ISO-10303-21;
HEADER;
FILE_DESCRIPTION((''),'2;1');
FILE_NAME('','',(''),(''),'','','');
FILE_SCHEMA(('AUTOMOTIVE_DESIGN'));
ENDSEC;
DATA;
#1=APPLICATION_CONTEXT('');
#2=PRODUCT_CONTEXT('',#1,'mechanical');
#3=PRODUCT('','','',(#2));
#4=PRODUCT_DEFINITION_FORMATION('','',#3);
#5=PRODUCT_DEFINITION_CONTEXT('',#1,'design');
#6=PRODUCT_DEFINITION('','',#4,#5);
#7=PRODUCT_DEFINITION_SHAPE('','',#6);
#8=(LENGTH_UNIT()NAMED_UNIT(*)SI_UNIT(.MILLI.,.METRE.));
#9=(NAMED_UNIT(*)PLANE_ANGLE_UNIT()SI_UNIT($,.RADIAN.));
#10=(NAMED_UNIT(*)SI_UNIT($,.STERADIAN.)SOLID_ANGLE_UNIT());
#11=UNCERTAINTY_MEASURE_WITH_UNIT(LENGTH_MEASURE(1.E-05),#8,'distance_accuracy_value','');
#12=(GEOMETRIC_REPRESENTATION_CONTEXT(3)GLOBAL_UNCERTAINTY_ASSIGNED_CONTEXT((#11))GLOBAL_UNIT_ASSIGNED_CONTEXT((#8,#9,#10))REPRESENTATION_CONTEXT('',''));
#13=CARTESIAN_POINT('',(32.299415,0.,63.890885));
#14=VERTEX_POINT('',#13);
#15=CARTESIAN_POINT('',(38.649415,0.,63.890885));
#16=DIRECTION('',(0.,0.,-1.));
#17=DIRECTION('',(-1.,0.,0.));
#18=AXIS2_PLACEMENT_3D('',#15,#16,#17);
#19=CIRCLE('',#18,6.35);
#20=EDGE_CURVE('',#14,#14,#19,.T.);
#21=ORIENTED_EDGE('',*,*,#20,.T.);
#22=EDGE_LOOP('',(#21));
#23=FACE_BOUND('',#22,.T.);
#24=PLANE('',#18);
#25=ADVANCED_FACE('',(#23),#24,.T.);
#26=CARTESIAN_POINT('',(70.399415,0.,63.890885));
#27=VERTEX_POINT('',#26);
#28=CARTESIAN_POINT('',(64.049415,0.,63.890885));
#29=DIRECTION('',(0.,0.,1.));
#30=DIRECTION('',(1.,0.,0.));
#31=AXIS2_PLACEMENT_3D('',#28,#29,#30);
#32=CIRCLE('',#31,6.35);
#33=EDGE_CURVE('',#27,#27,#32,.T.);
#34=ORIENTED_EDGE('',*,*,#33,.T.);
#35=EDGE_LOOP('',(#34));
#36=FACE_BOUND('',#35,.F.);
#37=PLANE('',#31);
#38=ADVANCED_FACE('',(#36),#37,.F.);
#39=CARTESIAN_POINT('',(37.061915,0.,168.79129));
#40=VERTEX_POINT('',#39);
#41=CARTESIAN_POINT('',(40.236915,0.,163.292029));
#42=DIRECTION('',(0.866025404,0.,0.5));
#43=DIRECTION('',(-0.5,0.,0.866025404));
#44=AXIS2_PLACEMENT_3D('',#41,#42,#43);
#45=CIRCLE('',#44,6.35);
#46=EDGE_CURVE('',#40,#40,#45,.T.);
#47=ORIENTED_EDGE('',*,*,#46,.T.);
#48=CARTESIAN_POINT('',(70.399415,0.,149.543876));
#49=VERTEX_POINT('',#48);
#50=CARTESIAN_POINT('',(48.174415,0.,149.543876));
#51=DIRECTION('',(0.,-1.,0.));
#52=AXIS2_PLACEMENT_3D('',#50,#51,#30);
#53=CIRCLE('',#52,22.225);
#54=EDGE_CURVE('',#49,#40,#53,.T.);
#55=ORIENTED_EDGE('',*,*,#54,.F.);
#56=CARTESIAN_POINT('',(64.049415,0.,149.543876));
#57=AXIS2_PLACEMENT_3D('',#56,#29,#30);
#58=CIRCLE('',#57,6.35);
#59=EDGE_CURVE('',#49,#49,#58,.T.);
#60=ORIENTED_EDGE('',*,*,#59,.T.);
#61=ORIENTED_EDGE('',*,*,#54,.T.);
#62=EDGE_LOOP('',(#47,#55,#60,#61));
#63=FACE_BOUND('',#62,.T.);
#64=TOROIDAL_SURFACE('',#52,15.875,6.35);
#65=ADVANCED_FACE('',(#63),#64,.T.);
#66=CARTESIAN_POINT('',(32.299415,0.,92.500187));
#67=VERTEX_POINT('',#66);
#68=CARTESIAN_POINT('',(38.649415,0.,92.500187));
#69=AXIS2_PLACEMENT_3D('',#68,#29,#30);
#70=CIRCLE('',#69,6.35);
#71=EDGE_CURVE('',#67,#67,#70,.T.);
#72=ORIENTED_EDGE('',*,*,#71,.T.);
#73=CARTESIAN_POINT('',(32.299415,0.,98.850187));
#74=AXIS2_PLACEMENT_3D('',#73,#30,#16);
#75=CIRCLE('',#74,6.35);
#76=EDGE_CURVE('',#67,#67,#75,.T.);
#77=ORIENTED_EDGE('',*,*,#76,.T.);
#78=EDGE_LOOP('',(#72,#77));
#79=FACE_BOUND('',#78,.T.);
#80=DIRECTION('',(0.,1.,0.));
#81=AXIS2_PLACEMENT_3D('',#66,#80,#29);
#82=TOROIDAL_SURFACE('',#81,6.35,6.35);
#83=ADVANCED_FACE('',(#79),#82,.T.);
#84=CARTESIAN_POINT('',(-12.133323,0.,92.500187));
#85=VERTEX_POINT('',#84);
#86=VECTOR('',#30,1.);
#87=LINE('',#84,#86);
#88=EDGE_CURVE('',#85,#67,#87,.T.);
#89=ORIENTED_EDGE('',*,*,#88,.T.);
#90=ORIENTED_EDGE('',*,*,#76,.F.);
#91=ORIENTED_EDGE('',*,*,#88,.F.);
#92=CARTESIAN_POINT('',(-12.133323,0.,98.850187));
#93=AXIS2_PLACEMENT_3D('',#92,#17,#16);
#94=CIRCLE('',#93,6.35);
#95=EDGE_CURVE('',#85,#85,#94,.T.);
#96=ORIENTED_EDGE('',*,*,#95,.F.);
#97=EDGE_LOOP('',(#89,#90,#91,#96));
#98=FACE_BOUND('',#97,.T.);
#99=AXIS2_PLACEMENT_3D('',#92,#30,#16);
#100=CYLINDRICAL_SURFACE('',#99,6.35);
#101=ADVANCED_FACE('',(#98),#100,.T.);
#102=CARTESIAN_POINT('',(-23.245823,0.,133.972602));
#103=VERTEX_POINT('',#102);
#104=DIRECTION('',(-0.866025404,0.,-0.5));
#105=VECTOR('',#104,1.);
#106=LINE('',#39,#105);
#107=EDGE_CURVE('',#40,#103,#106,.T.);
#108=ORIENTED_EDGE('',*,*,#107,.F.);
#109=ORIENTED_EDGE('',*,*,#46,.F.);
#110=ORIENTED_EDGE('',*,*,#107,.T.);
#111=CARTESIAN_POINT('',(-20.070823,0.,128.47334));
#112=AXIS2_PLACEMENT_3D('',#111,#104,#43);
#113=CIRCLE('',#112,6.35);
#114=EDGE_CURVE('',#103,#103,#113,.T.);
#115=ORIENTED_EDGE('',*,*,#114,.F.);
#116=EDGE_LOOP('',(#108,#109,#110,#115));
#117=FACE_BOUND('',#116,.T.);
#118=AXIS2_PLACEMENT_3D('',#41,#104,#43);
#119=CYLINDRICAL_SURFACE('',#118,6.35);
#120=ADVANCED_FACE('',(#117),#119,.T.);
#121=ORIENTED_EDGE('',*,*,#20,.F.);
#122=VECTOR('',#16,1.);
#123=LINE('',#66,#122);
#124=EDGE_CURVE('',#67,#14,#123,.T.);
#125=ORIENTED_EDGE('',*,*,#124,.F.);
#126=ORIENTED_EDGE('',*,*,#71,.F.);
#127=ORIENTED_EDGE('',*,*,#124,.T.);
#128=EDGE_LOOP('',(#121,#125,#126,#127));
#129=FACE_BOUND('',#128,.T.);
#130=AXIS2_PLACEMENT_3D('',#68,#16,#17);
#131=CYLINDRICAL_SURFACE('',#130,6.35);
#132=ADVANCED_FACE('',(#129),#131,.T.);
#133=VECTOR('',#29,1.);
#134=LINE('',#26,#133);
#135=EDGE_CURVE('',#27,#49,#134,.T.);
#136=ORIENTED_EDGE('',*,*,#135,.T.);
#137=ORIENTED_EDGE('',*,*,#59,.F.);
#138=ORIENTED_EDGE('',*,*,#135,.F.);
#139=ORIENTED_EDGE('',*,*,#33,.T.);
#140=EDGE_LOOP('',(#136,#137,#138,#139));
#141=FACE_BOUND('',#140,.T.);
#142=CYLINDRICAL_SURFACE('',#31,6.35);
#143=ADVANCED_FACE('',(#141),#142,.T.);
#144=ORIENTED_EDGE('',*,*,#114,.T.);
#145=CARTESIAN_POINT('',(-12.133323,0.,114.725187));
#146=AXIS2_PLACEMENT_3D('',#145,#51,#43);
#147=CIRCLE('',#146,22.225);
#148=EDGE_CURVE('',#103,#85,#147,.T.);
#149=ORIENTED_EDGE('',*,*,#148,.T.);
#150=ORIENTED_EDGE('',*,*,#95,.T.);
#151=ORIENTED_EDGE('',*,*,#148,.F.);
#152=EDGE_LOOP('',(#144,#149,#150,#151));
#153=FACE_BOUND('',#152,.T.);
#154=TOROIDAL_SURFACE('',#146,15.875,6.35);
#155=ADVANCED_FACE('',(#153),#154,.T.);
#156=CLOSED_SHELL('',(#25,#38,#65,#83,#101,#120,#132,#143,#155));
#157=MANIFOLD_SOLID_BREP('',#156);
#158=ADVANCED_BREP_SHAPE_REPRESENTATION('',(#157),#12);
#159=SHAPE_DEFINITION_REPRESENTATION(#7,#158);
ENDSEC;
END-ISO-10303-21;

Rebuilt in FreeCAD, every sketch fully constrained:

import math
import FreeCAD as App
import Part
import Sketcher
from FreeCAD import Vector
Q = App.Units.Quantity

doc = App.newDocument("Part")
params = doc.addObject("Spreadsheet::Sheet", "Params")
for row, (alias, value) in enumerate([
    ("sketch1_diameter", "0.5 in"),
    ("sketch2_radius", "0.25 in"),
    ("sketch2_radius2", "0.625 in"),
], start=1):
    params.set(f"A{row}", alias)
    params.set(f"B{row}", "=" + value)
    params.setAlias(f"B{row}", alias)

body = doc.addObject("PartDesign::Body", "Body")

sketch1 = doc.addObject("Sketcher::SketchObject", "Sketch")
body.addObject(sketch1)
sketch1.AttachmentSupport = (doc.XY_Plane, [""])
sketch1.MapMode = "FlatFace"
sketch1.AttachmentOffset = App.Placement(Vector(0, 0, 63.890885), App.Rotation())
sketch1.addGeometry(Part.Circle(Vector(64, 0, 0), Vector(0, 0, 1), 6), False)
sketch1.addConstraint([
    Sketcher.Constraint("PointOnObject", 0, 3, -1),
    Sketcher.Constraint("Diameter", 0, Q("0.5 in")),
    Sketcher.Constraint("DistanceX", -1, 1, 0, 3, 64.049415),
])
sketch1.setExpression("Constraints[1]", "Params.sketch1_diameter")

sketch2 = doc.addObject("Sketcher::SketchObject", "Sketch001")
body.addObject(sketch2)
sketch2.AttachmentSupport = (doc.XZ_Plane, [""])
sketch2.MapMode = "FlatFace"
sketch2.addGeometry([
    Part.LineSegment(Vector(64, 64, 0), Vector(64, 150, 0)),
    Part.ArcOfCircle(Part.Circle(Vector(48, 150, 0), Vector(0, 0, 1), 16), math.radians(0), math.radians(120)),
    Part.LineSegment(Vector(40, 163, 0), Vector(-20, 128, 0)),
    Part.ArcOfCircle(Part.Circle(Vector(-12, 115, 0), Vector(0, 0, 1), 16), math.radians(120), math.radians(270)),
    Part.LineSegment(Vector(-12, 99, 0), Vector(32, 99, 0)),
    Part.ArcOfCircle(Part.Circle(Vector(32, 93, 0), Vector(0, 0, 1), 6), math.radians(0), math.radians(90)),
    Part.LineSegment(Vector(39, 93, 0), Vector(39, 64, 0)),
], False)
sketch2.addConstraint([
    Sketcher.Constraint("Tangent", 0, 2, 1, 1),
    Sketcher.Constraint("Tangent", 1, 2, 2, 1),
    Sketcher.Constraint("Tangent", 2, 2, 3, 1),
    Sketcher.Constraint("Tangent", 3, 2, 4, 1),
    Sketcher.Constraint("Tangent", 4, 2, 5, 2),
    Sketcher.Constraint("Tangent", 5, 1, 6, 1),
    Sketcher.Constraint("Vertical", 0),
    Sketcher.Constraint("Horizontal", 4),
    Sketcher.Constraint("Vertical", 6),
    Sketcher.Constraint("Equal", 1, 3),
    Sketcher.Constraint("Horizontal", 0, 1, 6, 2),
    Sketcher.Constraint("Radius", 5, Q("0.25 in")),
    Sketcher.Constraint("Angle", 2, Q("-150 deg")),
    Sketcher.Constraint("Radius", 1, Q("0.625 in")),
    Sketcher.Constraint("DistanceX", 5, 1, 0, 1, Q("1 in")),
    Sketcher.Constraint("DistanceX", 4, 1, 4, 2, 44.432738),
    Sketcher.Constraint("DistanceY", 0, 1, 0, 2, 85.652991),
    Sketcher.Constraint("DistanceY", -1, 1, 1, 2, 163.292029),
    Sketcher.Constraint("DistanceX", -1, 1, 1, 3, 48.174415),
])
sketch2.setExpression("Constraints[11]", "Params.sketch2_radius")
sketch2.setExpression("Constraints[13]", "Params.sketch2_radius2")
doc.recompute()

additivepipe = doc.addObject("PartDesign::AdditivePipe", "AdditivePipe")
body.addObject(additivepipe)
additivepipe.Profile = sketch1
additivepipe.Spine = (sketch2, ["Edge1", "Edge2", "Edge3", "Edge4", "Edge5", "Edge6", "Edge7"])

doc.recompute()
